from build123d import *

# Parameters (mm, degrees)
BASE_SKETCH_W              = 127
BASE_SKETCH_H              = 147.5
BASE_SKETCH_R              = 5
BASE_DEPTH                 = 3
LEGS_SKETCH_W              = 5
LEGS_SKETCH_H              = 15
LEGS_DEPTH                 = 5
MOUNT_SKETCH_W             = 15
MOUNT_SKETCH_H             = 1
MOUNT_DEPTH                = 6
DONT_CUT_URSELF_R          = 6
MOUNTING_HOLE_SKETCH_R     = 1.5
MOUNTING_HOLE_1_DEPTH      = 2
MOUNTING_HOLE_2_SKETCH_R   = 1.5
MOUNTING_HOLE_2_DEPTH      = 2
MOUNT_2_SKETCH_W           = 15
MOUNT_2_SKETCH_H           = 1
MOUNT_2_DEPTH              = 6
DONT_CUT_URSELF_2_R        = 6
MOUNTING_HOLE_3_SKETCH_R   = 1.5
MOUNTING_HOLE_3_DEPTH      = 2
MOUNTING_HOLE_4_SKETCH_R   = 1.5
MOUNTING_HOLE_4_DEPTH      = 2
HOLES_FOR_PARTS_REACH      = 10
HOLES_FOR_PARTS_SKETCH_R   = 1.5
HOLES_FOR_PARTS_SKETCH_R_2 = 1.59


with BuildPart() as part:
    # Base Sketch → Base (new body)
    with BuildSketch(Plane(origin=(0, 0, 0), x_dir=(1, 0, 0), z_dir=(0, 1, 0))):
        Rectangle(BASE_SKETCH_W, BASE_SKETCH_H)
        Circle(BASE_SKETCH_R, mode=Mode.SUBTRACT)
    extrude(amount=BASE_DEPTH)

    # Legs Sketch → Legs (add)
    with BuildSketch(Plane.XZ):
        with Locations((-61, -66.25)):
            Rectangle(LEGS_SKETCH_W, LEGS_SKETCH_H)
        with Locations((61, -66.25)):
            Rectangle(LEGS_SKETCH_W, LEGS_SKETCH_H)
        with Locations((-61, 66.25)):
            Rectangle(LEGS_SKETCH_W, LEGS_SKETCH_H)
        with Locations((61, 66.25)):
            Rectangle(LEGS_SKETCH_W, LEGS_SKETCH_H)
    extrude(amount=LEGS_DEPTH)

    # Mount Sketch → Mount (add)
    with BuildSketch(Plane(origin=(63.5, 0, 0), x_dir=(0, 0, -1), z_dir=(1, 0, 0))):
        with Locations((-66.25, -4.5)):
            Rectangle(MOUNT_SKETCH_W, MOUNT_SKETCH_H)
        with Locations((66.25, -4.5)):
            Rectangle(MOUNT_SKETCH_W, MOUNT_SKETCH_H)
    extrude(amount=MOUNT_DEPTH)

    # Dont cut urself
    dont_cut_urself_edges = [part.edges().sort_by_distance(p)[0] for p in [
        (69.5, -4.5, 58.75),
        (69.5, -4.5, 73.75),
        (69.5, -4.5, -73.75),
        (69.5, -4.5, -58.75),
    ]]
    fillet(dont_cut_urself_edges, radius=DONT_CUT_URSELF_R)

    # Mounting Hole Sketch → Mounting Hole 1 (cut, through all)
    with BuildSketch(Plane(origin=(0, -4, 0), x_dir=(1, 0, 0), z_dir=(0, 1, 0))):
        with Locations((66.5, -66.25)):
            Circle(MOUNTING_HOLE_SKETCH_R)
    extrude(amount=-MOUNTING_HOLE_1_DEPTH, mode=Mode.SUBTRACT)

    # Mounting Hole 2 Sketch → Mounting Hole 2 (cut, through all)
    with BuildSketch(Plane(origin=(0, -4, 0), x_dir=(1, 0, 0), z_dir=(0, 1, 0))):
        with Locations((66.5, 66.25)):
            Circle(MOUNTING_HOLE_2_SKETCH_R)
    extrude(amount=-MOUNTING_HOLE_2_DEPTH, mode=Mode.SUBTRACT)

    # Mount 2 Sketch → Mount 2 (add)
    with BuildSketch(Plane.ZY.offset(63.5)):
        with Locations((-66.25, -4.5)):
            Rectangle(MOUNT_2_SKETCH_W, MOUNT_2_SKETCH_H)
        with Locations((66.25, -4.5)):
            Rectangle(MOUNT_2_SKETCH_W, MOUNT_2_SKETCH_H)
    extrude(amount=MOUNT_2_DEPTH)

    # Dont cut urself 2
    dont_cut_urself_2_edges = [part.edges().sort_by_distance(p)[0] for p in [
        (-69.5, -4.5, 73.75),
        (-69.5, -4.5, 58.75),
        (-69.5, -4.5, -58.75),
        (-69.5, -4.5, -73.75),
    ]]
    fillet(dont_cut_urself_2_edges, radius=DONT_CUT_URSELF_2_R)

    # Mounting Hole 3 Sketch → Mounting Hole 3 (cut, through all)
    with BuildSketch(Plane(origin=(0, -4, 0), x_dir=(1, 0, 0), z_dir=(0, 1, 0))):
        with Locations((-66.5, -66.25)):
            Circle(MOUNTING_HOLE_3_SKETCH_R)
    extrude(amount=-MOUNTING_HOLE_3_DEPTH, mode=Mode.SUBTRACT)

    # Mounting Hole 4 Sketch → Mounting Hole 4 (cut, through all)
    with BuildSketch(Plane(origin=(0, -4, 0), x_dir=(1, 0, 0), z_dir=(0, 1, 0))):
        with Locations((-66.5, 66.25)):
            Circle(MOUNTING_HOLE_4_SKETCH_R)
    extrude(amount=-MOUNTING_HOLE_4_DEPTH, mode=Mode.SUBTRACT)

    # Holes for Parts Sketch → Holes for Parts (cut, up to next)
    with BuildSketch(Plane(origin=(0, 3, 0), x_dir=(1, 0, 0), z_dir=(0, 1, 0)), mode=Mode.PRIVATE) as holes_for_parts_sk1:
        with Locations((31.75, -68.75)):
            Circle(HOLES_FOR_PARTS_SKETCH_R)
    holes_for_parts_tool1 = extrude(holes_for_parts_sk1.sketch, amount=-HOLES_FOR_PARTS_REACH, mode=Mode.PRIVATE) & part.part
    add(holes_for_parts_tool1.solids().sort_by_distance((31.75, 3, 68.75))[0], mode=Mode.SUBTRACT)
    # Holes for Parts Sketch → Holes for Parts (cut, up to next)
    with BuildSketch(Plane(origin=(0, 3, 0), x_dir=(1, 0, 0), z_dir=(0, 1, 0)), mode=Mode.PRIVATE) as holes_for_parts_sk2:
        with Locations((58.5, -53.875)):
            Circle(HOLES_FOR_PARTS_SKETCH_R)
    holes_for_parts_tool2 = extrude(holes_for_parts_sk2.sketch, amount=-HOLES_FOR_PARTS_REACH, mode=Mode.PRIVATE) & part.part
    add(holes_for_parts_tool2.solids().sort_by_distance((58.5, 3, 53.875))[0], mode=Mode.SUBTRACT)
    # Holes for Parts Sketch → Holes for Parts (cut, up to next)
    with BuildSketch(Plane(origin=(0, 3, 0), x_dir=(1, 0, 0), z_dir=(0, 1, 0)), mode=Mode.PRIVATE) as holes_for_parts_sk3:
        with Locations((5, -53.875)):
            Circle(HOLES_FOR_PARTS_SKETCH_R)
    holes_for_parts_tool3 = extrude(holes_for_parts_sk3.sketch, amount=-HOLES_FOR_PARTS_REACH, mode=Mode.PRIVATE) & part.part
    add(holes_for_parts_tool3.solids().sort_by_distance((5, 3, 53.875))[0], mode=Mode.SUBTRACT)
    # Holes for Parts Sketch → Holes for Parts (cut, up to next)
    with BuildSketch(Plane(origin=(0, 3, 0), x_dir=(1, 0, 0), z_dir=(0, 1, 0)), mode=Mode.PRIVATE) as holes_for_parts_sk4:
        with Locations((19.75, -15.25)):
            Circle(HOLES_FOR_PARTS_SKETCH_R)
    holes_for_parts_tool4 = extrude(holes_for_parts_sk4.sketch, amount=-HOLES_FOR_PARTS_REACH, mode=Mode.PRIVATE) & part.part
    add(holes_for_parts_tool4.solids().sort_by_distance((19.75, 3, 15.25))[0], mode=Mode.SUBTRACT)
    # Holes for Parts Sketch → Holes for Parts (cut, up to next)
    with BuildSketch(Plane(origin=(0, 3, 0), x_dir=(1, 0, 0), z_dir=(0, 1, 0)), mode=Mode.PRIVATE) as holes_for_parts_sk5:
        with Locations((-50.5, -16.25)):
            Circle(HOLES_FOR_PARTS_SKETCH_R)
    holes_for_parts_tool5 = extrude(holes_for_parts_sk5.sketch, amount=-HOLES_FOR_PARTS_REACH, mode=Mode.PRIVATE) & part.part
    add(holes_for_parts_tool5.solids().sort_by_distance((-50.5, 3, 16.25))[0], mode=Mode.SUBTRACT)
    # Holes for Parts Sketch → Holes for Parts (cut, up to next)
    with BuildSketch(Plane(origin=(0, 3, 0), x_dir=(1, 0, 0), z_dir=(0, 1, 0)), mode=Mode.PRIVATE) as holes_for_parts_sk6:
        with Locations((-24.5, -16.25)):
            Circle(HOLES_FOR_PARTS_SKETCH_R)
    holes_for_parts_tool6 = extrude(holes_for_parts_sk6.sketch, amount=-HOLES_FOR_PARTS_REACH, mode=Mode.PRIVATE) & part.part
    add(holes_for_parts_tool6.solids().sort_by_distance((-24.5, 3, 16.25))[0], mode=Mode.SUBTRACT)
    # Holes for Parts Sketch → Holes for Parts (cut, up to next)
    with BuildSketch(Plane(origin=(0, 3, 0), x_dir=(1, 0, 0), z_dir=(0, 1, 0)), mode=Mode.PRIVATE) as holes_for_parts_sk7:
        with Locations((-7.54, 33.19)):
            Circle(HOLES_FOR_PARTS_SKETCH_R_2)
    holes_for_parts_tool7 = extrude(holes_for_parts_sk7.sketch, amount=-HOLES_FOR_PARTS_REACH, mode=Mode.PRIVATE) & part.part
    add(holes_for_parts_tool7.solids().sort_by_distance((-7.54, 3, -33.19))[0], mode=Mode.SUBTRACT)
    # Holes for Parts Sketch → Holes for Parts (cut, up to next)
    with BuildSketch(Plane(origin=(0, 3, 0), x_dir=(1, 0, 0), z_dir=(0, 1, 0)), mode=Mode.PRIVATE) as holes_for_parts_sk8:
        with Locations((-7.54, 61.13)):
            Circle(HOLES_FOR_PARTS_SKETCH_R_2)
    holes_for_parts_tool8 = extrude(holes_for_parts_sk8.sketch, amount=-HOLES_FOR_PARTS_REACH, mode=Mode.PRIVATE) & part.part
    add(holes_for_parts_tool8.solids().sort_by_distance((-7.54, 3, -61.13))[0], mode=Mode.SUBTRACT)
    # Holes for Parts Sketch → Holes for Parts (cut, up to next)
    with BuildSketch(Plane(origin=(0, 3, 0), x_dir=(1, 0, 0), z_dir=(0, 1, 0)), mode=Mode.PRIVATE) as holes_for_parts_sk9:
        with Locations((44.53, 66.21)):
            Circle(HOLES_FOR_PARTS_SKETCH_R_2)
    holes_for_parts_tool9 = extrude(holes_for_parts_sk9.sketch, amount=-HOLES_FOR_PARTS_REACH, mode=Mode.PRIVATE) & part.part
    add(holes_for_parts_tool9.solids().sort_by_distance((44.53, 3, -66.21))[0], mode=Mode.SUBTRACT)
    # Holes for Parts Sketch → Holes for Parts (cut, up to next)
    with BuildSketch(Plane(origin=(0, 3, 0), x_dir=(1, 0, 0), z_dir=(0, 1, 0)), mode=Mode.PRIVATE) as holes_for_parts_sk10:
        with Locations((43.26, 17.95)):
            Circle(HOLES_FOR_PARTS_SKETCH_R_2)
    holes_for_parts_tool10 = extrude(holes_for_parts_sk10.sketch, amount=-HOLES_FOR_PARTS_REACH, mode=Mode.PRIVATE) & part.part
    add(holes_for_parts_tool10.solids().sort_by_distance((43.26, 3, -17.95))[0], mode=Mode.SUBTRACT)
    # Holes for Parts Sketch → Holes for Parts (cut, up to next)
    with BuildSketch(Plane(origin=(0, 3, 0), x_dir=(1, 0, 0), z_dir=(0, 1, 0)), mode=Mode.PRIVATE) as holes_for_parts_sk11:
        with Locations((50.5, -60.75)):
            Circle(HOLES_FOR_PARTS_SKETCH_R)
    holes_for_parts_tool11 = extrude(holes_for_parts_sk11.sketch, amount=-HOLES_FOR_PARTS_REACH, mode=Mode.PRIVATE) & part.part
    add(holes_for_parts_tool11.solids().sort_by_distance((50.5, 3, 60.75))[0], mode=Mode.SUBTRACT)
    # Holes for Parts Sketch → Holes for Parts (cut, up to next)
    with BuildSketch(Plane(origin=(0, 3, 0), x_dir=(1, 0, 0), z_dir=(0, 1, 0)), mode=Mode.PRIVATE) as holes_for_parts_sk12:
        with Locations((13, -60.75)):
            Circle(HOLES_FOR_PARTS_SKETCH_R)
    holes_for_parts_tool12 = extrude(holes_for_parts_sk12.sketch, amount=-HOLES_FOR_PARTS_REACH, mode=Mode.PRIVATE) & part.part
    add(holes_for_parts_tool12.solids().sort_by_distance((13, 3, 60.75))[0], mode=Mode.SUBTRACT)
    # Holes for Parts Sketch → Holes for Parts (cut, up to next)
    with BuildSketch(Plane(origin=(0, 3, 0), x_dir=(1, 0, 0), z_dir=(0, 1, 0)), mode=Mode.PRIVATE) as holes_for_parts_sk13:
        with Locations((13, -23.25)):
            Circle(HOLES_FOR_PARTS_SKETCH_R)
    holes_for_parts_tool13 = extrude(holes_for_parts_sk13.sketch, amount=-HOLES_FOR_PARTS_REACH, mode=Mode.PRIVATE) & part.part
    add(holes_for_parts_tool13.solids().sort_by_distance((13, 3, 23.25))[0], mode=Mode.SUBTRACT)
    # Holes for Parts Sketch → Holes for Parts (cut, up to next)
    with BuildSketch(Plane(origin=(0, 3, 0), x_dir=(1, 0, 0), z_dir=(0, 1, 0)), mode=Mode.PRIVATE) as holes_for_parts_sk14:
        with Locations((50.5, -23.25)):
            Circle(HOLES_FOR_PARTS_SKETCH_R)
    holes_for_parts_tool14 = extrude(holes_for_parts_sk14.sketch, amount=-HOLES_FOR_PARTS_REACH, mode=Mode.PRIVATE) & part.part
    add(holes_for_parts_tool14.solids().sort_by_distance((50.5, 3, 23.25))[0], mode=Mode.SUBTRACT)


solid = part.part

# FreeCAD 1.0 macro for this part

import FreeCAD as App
import Part
import Sketcher

V = App.Vector


def edges_at(feature, points):
    """Names of the edges that pass closest to the given points."""
    edges = feature.Shape.Edges
    near = lambda p: min(range(len(edges)), key=lambda i: edges[i].distToShape(Part.Vertex(*p))[0])
    return sorted({f"Edge{near(p) + 1}" for p in points})

doc = App.newDocument("Part")
params = doc.addObject("Spreadsheet::Sheet", "Params")
for row, (alias, value) in enumerate([
    ("sketch1_diameter", "10 mm"),
    ("sketch1_width", "127 mm"),
    ("sketch1_height", "147.5 mm"),
    ("pad1_length", "3 mm"),
    ("sketch2_width", "5 mm"),
    ("sketch2_height", "15 mm"),
    ("pad2_length", "5 mm"),
    ("sketch3_width", "1 mm"),
    ("sketch3_height", "15 mm"),
    ("pad3_length", "6 mm"),
    ("fillet_radius", "6 mm"),
    ("sketch4_diameter", "3 mm"),
    ("sketch5_diameter", "3 mm"),
    ("sketch6_width", "1 mm"),
    ("sketch6_height", "15 mm"),
    ("pad4_length", "6 mm"),
    ("fillet2_radius", "6 mm"),
    ("sketch7_diameter", "3 mm"),
    ("sketch8_diameter", "3 mm"),
    ("sketch9_diameter", "3 mm"),
    ("sketch10_diameter", "3 mm"),
    ("sketch11_diameter", "3 mm"),
    ("sketch12_diameter", "3 mm"),
    ("sketch13_diameter", "3 mm"),
    ("sketch14_diameter", "3 mm"),
    ("sketch15_diameter", "3.18 mm"),
    ("sketch16_diameter", "3.18 mm"),
    ("sketch17_diameter", "3.18 mm"),
    ("sketch18_diameter", "3.18 mm"),
    ("sketch19_diameter", "3 mm"),
    ("sketch20_diameter", "3 mm"),
    ("sketch21_diameter", "3 mm"),
    ("sketch22_diameter", "3 mm"),
], start=1):
    params.set(f"A{row}", alias)
    params.set(f"B{row}", "=" + value)
    params.setAlias(f"B{row}", alias)

body = doc.addObject("PartDesign::Body", "Body")

sketch1 = doc.addObject("Sketcher::SketchObject", "Sketch")
body.addObject(sketch1)
sketch1.AttachmentSupport = (doc.XZ_Plane, [""])
sketch1.MapMode = "FlatFace"
sketch1.addGeometry([
    Part.LineSegment(V(-64, -74, 0), V(-64, 74, 0)),
    Part.LineSegment(V(-64, 74, 0), V(64, 74, 0)),
    Part.LineSegment(V(64, 74, 0), V(64, -74, 0)),
    Part.LineSegment(V(64, -74, 0), V(-64, -74, 0)),
    Part.Circle(V(0, 0, 0), V(0, 0, 1), 5),
], False)
sketch1.addConstraint([
    Sketcher.Constraint("Coincident", 0, 2, 1, 1),
    Sketcher.Constraint("Coincident", 1, 2, 2, 1),
    Sketcher.Constraint("Coincident", 2, 2, 3, 1),
    Sketcher.Constraint("Coincident", 3, 2, 0, 1),
    Sketcher.Constraint("Vertical", 0),
    Sketcher.Constraint("Horizontal", 1),
    Sketcher.Constraint("Vertical", 2),
    Sketcher.Constraint("Horizontal", 3),
    Sketcher.Constraint("Coincident", 4, 3, -1, 1),
    Sketcher.Constraint("Symmetric", 0, 2, 2, 2, -1, 1),
    Sketcher.Constraint("Diameter", 4, 10.0),
    Sketcher.Constraint("DistanceX", 1, 1, 1, 2, 127.0),
    Sketcher.Constraint("DistanceY", 0, 1, 0, 2, 147.5),
])
sketch1.setExpression("Constraints[10]", "Params.sketch1_diameter")
sketch1.setExpression("Constraints[11]", "Params.sketch1_width")
sketch1.setExpression("Constraints[12]", "Params.sketch1_height")
pad1 = doc.addObject("PartDesign::Pad", "Pad")
body.addObject(pad1)
pad1.Profile = sketch1
pad1.setExpression("Length", "Params.pad1_length")
pad1.Reversed = True

sketch2 = doc.addObject("Sketcher::SketchObject", "Sketch001")
body.addObject(sketch2)
sketch2.AttachmentSupport = (doc.XZ_Plane, [""])
sketch2.MapMode = "FlatFace"
sketch2.addGeometry([
    Part.LineSegment(V(-64, -59, 0), V(-64, -74, 0)),
    Part.LineSegment(V(-64, -74, 0), V(-58, -74, 0)),
    Part.LineSegment(V(-58, -74, 0), V(-58, -59, 0)),
    Part.LineSegment(V(-58, -59, 0), V(-64, -59, 0)),
    Part.LineSegment(V(58, -59, 0), V(58, -74, 0)),
    Part.LineSegment(V(58, -74, 0), V(64, -74, 0)),
    Part.LineSegment(V(64, -74, 0), V(64, -59, 0)),
    Part.LineSegment(V(64, -59, 0), V(58, -59, 0)),
    Part.LineSegment(V(-64, 74, 0), V(-64, 59, 0)),
    Part.LineSegment(V(-64, 59, 0), V(-58, 59, 0)),
    Part.LineSegment(V(-58, 59, 0), V(-58, 74, 0)),
    Part.LineSegment(V(-58, 74, 0), V(-64, 74, 0)),
    Part.LineSegment(V(58, 74, 0), V(58, 59, 0)),
    Part.LineSegment(V(58, 59, 0), V(64, 59, 0)),
    Part.LineSegment(V(64, 59, 0), V(64, 74, 0)),
    Part.LineSegment(V(64, 74, 0), V(58, 74, 0)),
], False)
sketch2.addConstraint([
    Sketcher.Constraint("Coincident", 0, 2, 1, 1),
    Sketcher.Constraint("Coincident", 1, 2, 2, 1),
    Sketcher.Constraint("Coincident", 2, 2, 3, 1),
    Sketcher.Constraint("Coincident", 3, 2, 0, 1),
    Sketcher.Constraint("Coincident", 4, 2, 5, 1),
    Sketcher.Constraint("Coincident", 5, 2, 6, 1),
    Sketcher.Constraint("Coincident", 6, 2, 7, 1),
    Sketcher.Constraint("Coincident", 7, 2, 4, 1),
    Sketcher.Constraint("Coincident", 8, 2, 9, 1),
    Sketcher.Constraint("Coincident", 9, 2, 10, 1),
    Sketcher.Constraint("Coincident", 10, 2, 11, 1),
    Sketcher.Constraint("Coincident", 11, 2, 8, 1),
    Sketcher.Constraint("Coincident", 12, 2, 13, 1),
    Sketcher.Constraint("Coincident", 13, 2, 14, 1),
    Sketcher.Constraint("Coincident", 14, 2, 15, 1),
    Sketcher.Constraint("Coincident", 15, 2, 12, 1),
    Sketcher.Constraint("Vertical", 0),
    Sketcher.Constraint("Horizontal", 1),
    Sketcher.Constraint("Vertical", 2),
    Sketcher.Constraint("Horizontal", 3),
    Sketcher.Constraint("Vertical", 4),
    Sketcher.Constraint("Horizontal", 5),
    Sketcher.Constraint("Vertical", 6),
    Sketcher.Constraint("Horizontal", 7),
    Sketcher.Constraint("Vertical", 8),
    Sketcher.Constraint("Horizontal", 9),
    Sketcher.Constraint("Vertical", 10),
    Sketcher.Constraint("Horizontal", 11),
    Sketcher.Constraint("Vertical", 12),
    Sketcher.Constraint("Horizontal", 13),
    Sketcher.Constraint("Vertical", 14),
    Sketcher.Constraint("Horizontal", 15),
    Sketcher.Constraint("Symmetric", 6, 2, 8, 2, -1, 1),
    Sketcher.Constraint("Symmetric", 4, 2, 10, 2, -1, 1),
    Sketcher.Constraint("Symmetric", 2, 2, 12, 2, -1, 1),
    Sketcher.Constraint("Symmetric", 0, 2, 14, 2, -1, 1),
    Sketcher.Constraint("Symmetric", 1, 2, 4, 2, -2),
    Sketcher.Constraint("Symmetric", 3, 2, 6, 2, -2),
    Sketcher.Constraint("DistanceX", 1, 1, 1, 2, 5.0),
    Sketcher.Constraint("DistanceY", 0, 2, 0, 1, 15.0),
    Sketcher.Constraint("DistanceX", 1, 2, 4, 2, 117.0),
    Sketcher.Constraint("DistanceY", 3, 2, 8, 2, 117.5),
])
sketch2.setExpression("Constraints[38]", "Params.sketch2_width")
sketch2.setExpression("Constraints[39]", "Params.sketch2_height")
pad2 = doc.addObject("PartDesign::Pad", "Pad001")
body.addObject(pad2)
pad2.Profile = sketch2
pad2.setExpression("Length", "Params.pad2_length")

sketch3 = doc.addObject("Sketcher::SketchObject", "Sketch002")
body.addObject(sketch3)
sketch3.AttachmentSupport = (doc.YZ_Plane, [""])
sketch3.MapMode = "FlatFace"
sketch3.AttachmentOffset = App.Placement(V(0, 0, 63.5), App.Rotation())
sketch3.addGeometry([
    Part.LineSegment(V(-4, 73.8, 0), V(-5, 73.8, 0)),
    Part.LineSegment(V(-5, 73.8, 0), V(-5, 58.8, 0)),
    Part.LineSegment(V(-5, 58.8, 0), V(-4, 58.8, 0)),
    Part.LineSegment(V(-4, 58.8, 0), V(-4, 73.8, 0)),
    Part.LineSegment(V(-4, -58.8, 0), V(-5, -58.8, 0)),
    Part.LineSegment(V(-5, -58.8, 0), V(-5, -73.8, 0)),
    Part.LineSegment(V(-5, -73.8, 0), V(-4, -73.8, 0)),
    Part.LineSegment(V(-4, -73.8, 0), V(-4, -58.8, 0)),
], False)
sketch3.addConstraint([
    Sketcher.Constraint("Coincident", 0, 2, 1, 1),
    Sketcher.Constraint("Coincident", 1, 2, 2, 1),
    Sketcher.Constraint("Coincident", 2, 2, 3, 1),
    Sketcher.Constraint("Coincident", 3, 2, 0, 1),
    Sketcher.Constraint("Coincident", 4, 2, 5, 1),
    Sketcher.Constraint("Coincident", 5, 2, 6, 1),
    Sketcher.Constraint("Coincident", 6, 2, 7, 1),
    Sketcher.Constraint("Coincident", 7, 2, 4, 1),
    Sketcher.Constraint("Horizontal", 0),
    Sketcher.Constraint("Vertical", 1),
    Sketcher.Constraint("Horizontal", 2),
    Sketcher.Constraint("Vertical", 3),
    Sketcher.Constraint("Horizontal", 4),
    Sketcher.Constraint("Vertical", 5),
    Sketcher.Constraint("Horizontal", 6),
    Sketcher.Constraint("Vertical", 7),
    Sketcher.Constraint("Symmetric", 1, 2, 4, 2, -1),
    Sketcher.Constraint("Symmetric", 3, 2, 6, 2, -1),
    Sketcher.Constraint("DistanceX", 0, 2, 0, 1, 1.0),
    Sketcher.Constraint("DistanceY", 1, 2, 1, 1, 15.0),
    Sketcher.Constraint("DistanceX", 0, 2, -1, 1, 5.0),
    Sketcher.Constraint("DistanceY", 4, 2, 1, 2, 117.5),
])
sketch3.setExpression("Constraints[18]", "Params.sketch3_width")
sketch3.setExpression("Constraints[19]", "Params.sketch3_height")
pad3 = doc.addObject("PartDesign::Pad", "Pad002")
body.addObject(pad3)
pad3.Profile = sketch3
pad3.setExpression("Length", "Params.pad3_length")
doc.recompute()

fillet = doc.addObject("PartDesign::Fillet", "Fillet")
body.addObject(fillet)
fillet.Base = (pad3, edges_at(pad3, [
    (69.5, -4.5, 58.75),
    (69.5, -4.5, 73.75),
    (69.5, -4.5, -73.75),
    (69.5, -4.5, -58.75),
]))
fillet.setExpression("Radius", "Params.fillet_radius")

sketch4 = doc.addObject("Sketcher::SketchObject", "Sketch003")
body.addObject(sketch4)
sketch4.AttachmentSupport = (doc.XZ_Plane, [""])
sketch4.MapMode = "FlatFace"
sketch4.AttachmentOffset = App.Placement(V(0, 0, 4), App.Rotation())
sketch4.addGeometry(Part.Circle(V(66.5, 66.2, 0), V(0, 0, 1), 1.5), False)
sketch4.addConstraint([
    Sketcher.Constraint("Diameter", 0, 3.0),
    Sketcher.Constraint("DistanceX", -1, 1, 0, 3, 66.5),
    Sketcher.Constraint("DistanceY", -1, 1, 0, 3, 66.25),
])
sketch4.setExpression("Constraints[0]", "Params.sketch4_diameter")
pocket1 = doc.addObject("PartDesign::Pocket", "Pocket")
body.addObject(pocket1)
pocket1.Profile = sketch4
pocket1.Type = "ThroughAll"
pocket1.Reversed = True

sketch5 = doc.addObject("Sketcher::SketchObject", "Sketch004")
body.addObject(sketch5)
sketch5.AttachmentSupport = (doc.XZ_Plane, [""])
sketch5.MapMode = "FlatFace"
sketch5.AttachmentOffset = App.Placement(V(0, 0, 4), App.Rotation())
sketch5.addGeometry(Part.Circle(V(66.5, -66.2, 0), V(0, 0, 1), 1.5), False)
sketch5.addConstraint([
    Sketcher.Constraint("Diameter", 0, 3.0),
    Sketcher.Constraint("DistanceX", -1, 1, 0, 3, 66.5),
    Sketcher.Constraint("DistanceY", 0, 3, -1, 1, 66.25),
])
sketch5.setExpression("Constraints[0]", "Params.sketch5_diameter")
pocket2 = doc.addObject("PartDesign::Pocket", "Pocket001")
body.addObject(pocket2)
pocket2.Profile = sketch5
pocket2.Type = "ThroughAll"
pocket2.Reversed = True

sketch6 = doc.addObject("Sketcher::SketchObject", "Sketch005")
body.addObject(sketch6)
sketch6.AttachmentSupport = (doc.YZ_Plane, [""])
sketch6.MapMode = "FlatFace"
sketch6.AttachmentOffset = App.Placement(V(0, 0, -63.5), App.Rotation())
sketch6.addGeometry([
    Part.LineSegment(V(-4, -73.8, 0), V(-5, -73.8, 0)),
    Part.LineSegment(V(-5, -73.8, 0), V(-5, -58.8, 0)),
    Part.LineSegment(V(-5, -58.8, 0), V(-4, -58.8, 0)),
    Part.LineSegment(V(-4, -58.8, 0), V(-4, -73.8, 0)),
    Part.LineSegment(V(-4, 58.8, 0), V(-5, 58.8, 0)),
    Part.LineSegment(V(-5, 58.8, 0), V(-5, 73.8, 0)),
    Part.LineSegment(V(-5, 73.8, 0), V(-4, 73.8, 0)),
    Part.LineSegment(V(-4, 73.8, 0), V(-4, 58.8, 0)),
], False)
sketch6.addConstraint([
    Sketcher.Constraint("Coincident", 0, 2, 1, 1),
    Sketcher.Constraint("Coincident", 1, 2, 2, 1),
    Sketcher.Constraint("Coincident", 2, 2, 3, 1),
    Sketcher.Constraint("Coincident", 3, 2, 0, 1),
    Sketcher.Constraint("Coincident", 4, 2, 5, 1),
    Sketcher.Constraint("Coincident", 5, 2, 6, 1),
    Sketcher.Constraint("Coincident", 6, 2, 7, 1),
    Sketcher.Constraint("Coincident", 7, 2, 4, 1),
    Sketcher.Constraint("Horizontal", 0),
    Sketcher.Constraint("Vertical", 1),
    Sketcher.Constraint("Horizontal", 2),
    Sketcher.Constraint("Vertical", 3),
    Sketcher.Constraint("Horizontal", 4),
    Sketcher.Constraint("Vertical", 5),
    Sketcher.Constraint("Horizontal", 6),
    Sketcher.Constraint("Vertical", 7),
    Sketcher.Constraint("Symmetric", 1, 2, 4, 2, -1),
    Sketcher.Constraint("Symmetric", 3, 2, 6, 2, -1),
    Sketcher.Constraint("DistanceX", 0, 2, 0, 1, 1.0),
    Sketcher.Constraint("DistanceY", 1, 1, 1, 2, 15.0),
    Sketcher.Constraint("DistanceX", 0, 2, -1, 1, 5.0),
    Sketcher.Constraint("DistanceY", 1, 2, 4, 2, 117.5),
])
sketch6.setExpression("Constraints[18]", "Params.sketch6_width")
sketch6.setExpression("Constraints[19]", "Params.sketch6_height")
pad4 = doc.addObject("PartDesign::Pad", "Pad003")
body.addObject(pad4)
pad4.Profile = sketch6
pad4.setExpression("Length", "Params.pad4_length")
pad4.Reversed = True
doc.recompute()

fillet2 = doc.addObject("PartDesign::Fillet", "Fillet001")
body.addObject(fillet2)
fillet2.Base = (pad4, edges_at(pad4, [
    (-69.5, -4.5, 73.75),
    (-69.5, -4.5, 58.75),
    (-69.5, -4.5, -58.75),
    (-69.5, -4.5, -73.75),
]))
fillet2.setExpression("Radius", "Params.fillet2_radius")

sketch7 = doc.addObject("Sketcher::SketchObject", "Sketch006")
body.addObject(sketch7)
sketch7.AttachmentSupport = (doc.XZ_Plane, [""])
sketch7.MapMode = "FlatFace"
sketch7.AttachmentOffset = App.Placement(V(0, 0, 4), App.Rotation())
sketch7.addGeometry(Part.Circle(V(-66.5, 66.2, 0), V(0, 0, 1), 1.5), False)
sketch7.addConstraint([
    Sketcher.Constraint("Diameter", 0, 3.0),
    Sketcher.Constraint("DistanceX", 0, 3, -1, 1, 66.5),
    Sketcher.Constraint("DistanceY", -1, 1, 0, 3, 66.25),
])
sketch7.setExpression("Constraints[0]", "Params.sketch7_diameter")
pocket3 = doc.addObject("PartDesign::Pocket", "Pocket002")
body.addObject(pocket3)
pocket3.Profile = sketch7
pocket3.Type = "ThroughAll"
pocket3.Reversed = True

sketch8 = doc.addObject("Sketcher::SketchObject", "Sketch007")
body.addObject(sketch8)
sketch8.AttachmentSupport = (doc.XZ_Plane, [""])
sketch8.MapMode = "FlatFace"
sketch8.AttachmentOffset = App.Placement(V(0, 0, 4), App.Rotation())
sketch8.addGeometry(Part.Circle(V(-66.5, -66.2, 0), V(0, 0, 1), 1.5), False)
sketch8.addConstraint([
    Sketcher.Constraint("Diameter", 0, 3.0),
    Sketcher.Constraint("DistanceX", 0, 3, -1, 1, 66.5),
    Sketcher.Constraint("DistanceY", 0, 3, -1, 1, 66.25),
])
sketch8.setExpression("Constraints[0]", "Params.sketch8_diameter")
pocket4 = doc.addObject("PartDesign::Pocket", "Pocket003")
body.addObject(pocket4)
pocket4.Profile = sketch8
pocket4.Type = "ThroughAll"
pocket4.Reversed = True

sketch9 = doc.addObject("Sketcher::SketchObject", "Sketch008")
body.addObject(sketch9)
sketch9.AttachmentSupport = (doc.XZ_Plane, [""])
sketch9.MapMode = "FlatFace"
sketch9.AttachmentOffset = App.Placement(V(0, 0, -3), App.Rotation())
sketch9.addGeometry(Part.Circle(V(31.8, 68.8, 0), V(0, 0, 1), 1.5), False)
sketch9.addConstraint([
    Sketcher.Constraint("Diameter", 0, 3.0),
    Sketcher.Constraint("DistanceX", -1, 1, 0, 3, 31.75),
    Sketcher.Constraint("DistanceY", -1, 1, 0, 3, 68.75),
])
sketch9.setExpression("Constraints[0]", "Params.sketch9_diameter")
pocket5 = doc.addObject("PartDesign::Pocket", "Pocket004")
body.addObject(pocket5)
pocket5.Profile = sketch9
pocket5.Type = "UpToFirst"
pocket5.Reversed = True

sketch10 = doc.addObject("Sketcher::SketchObject", "Sketch009")
body.addObject(sketch10)
sketch10.AttachmentSupport = (doc.XZ_Plane, [""])
sketch10.MapMode = "FlatFace"
sketch10.AttachmentOffset = App.Placement(V(0, 0, -3), App.Rotation())
sketch10.addGeometry(Part.Circle(V(58.5, 53.9, 0), V(0, 0, 1), 1.5), False)
sketch10.addConstraint([
    Sketcher.Constraint("Diameter", 0, 3.0),
    Sketcher.Constraint("DistanceX", -1, 1, 0, 3, 58.5),
    Sketcher.Constraint("DistanceY", -1, 1, 0, 3, 53.875),
])
sketch10.setExpression("Constraints[0]", "Params.sketch10_diameter")
pocket6 = doc.addObject("PartDesign::Pocket", "Pocket005")
body.addObject(pocket6)
pocket6.Profile = sketch10
pocket6.Type = "UpToFirst"
pocket6.Reversed = True

sketch11 = doc.addObject("Sketcher::SketchObject", "Sketch010")
body.addObject(sketch11)
sketch11.AttachmentSupport = (doc.XZ_Plane, [""])
sketch11.MapMode = "FlatFace"
sketch11.AttachmentOffset = App.Placement(V(0, 0, -3), App.Rotation())
sketch11.addGeometry(Part.Circle(V(5, 53.9, 0), V(0, 0, 1), 1.5), False)
sketch11.addConstraint([
    Sketcher.Constraint("Diameter", 0, 3.0),
    Sketcher.Constraint("DistanceX", -1, 1, 0, 3, 5.0),
    Sketcher.Constraint("DistanceY", -1, 1, 0, 3, 53.875),
])
sketch11.setExpression("Constraints[0]", "Params.sketch11_diameter")
pocket7 = doc.addObject("PartDesign::Pocket", "Pocket006")
body.addObject(pocket7)
pocket7.Profile = sketch11
pocket7.Type = "UpToFirst"
pocket7.Reversed = True

sketch12 = doc.addObject("Sketcher::SketchObject", "Sketch011")
body.addObject(sketch12)
sketch12.AttachmentSupport = (doc.XZ_Plane, [""])
sketch12.MapMode = "FlatFace"
sketch12.AttachmentOffset = App.Placement(V(0, 0, -3), App.Rotation())
sketch12.addGeometry(Part.Circle(V(19.8, 15.2, 0), V(0, 0, 1), 1.5), False)
sketch12.addConstraint([
    Sketcher.Constraint("Diameter", 0, 3.0),
    Sketcher.Constraint("DistanceX", -1, 1, 0, 3, 19.75),
    Sketcher.Constraint("DistanceY", -1, 1, 0, 3, 15.25),
])
sketch12.setExpression("Constraints[0]", "Params.sketch12_diameter")
pocket8 = doc.addObject("PartDesign::Pocket", "Pocket007")
body.addObject(pocket8)
pocket8.Profile = sketch12
pocket8.Type = "UpToFirst"
pocket8.Reversed = True

sketch13 = doc.addObject("Sketcher::SketchObject", "Sketch012")
body.addObject(sketch13)
sketch13.AttachmentSupport = (doc.XZ_Plane, [""])
sketch13.MapMode = "FlatFace"
sketch13.AttachmentOffset = App.Placement(V(0, 0, -3), App.Rotation())
sketch13.addGeometry(Part.Circle(V(-50.5, 16.2, 0), V(0, 0, 1), 1.5), False)
sketch13.addConstraint([
    Sketcher.Constraint("Diameter", 0, 3.0),
    Sketcher.Constraint("DistanceX", 0, 3, -1, 1, 50.5),
    Sketcher.Constraint("DistanceY", -1, 1, 0, 3, 16.25),
])
sketch13.setExpression("Constraints[0]", "Params.sketch13_diameter")
pocket9 = doc.addObject("PartDesign::Pocket", "Pocket008")
body.addObject(pocket9)
pocket9.Profile = sketch13
pocket9.Type = "UpToFirst"
pocket9.Reversed = True

sketch14 = doc.addObject("Sketcher::SketchObject", "Sketch013")
body.addObject(sketch14)
sketch14.AttachmentSupport = (doc.XZ_Plane, [""])
sketch14.MapMode = "FlatFace"
sketch14.AttachmentOffset = App.Placement(V(0, 0, -3), App.Rotation())
sketch14.addGeometry(Part.Circle(V(-24.5, 16.2, 0), V(0, 0, 1), 1.5), False)
sketch14.addConstraint([
    Sketcher.Constraint("Diameter", 0, 3.0),
    Sketcher.Constraint("DistanceX", 0, 3, -1, 1, 24.5),
    Sketcher.Constraint("DistanceY", -1, 1, 0, 3, 16.25),
])
sketch14.setExpression("Constraints[0]", "Params.sketch14_diameter")
pocket10 = doc.addObject("PartDesign::Pocket", "Pocket009")
body.addObject(pocket10)
pocket10.Profile = sketch14
pocket10.Type = "UpToFirst"
pocket10.Reversed = True

sketch15 = doc.addObject("Sketcher::SketchObject", "Sketch014")
body.addObject(sketch15)
sketch15.AttachmentSupport = (doc.XZ_Plane, [""])
sketch15.MapMode = "FlatFace"
sketch15.AttachmentOffset = App.Placement(V(0, 0, -3), App.Rotation())
sketch15.addGeometry(Part.Circle(V(-7.5, -33.2, 0), V(0, 0, 1), 1.6), False)
sketch15.addConstraint([
    Sketcher.Constraint("Diameter", 0, 3.18),
    Sketcher.Constraint("DistanceX", 0, 3, -1, 1, 7.54),
    Sketcher.Constraint("DistanceY", 0, 3, -1, 1, 33.19),
])
sketch15.setExpression("Constraints[0]", "Params.sketch15_diameter")
pocket11 = doc.addObject("PartDesign::Pocket", "Pocket010")
body.addObject(pocket11)
pocket11.Profile = sketch15
pocket11.Type = "UpToFirst"
pocket11.Reversed = True

sketch16 = doc.addObject("Sketcher::SketchObject", "Sketch015")
body.addObject(sketch16)
sketch16.AttachmentSupport = (doc.XZ_Plane, [""])
sketch16.MapMode = "FlatFace"
sketch16.AttachmentOffset = App.Placement(V(0, 0, -3), App.Rotation())
sketch16.addGeometry(Part.Circle(V(-7.5, -61.1, 0), V(0, 0, 1), 1.6), False)
sketch16.addConstraint([
    Sketcher.Constraint("Diameter", 0, 3.18),
    Sketcher.Constraint("DistanceX", 0, 3, -1, 1, 7.54),
    Sketcher.Constraint("DistanceY", 0, 3, -1, 1, 61.13),
])
sketch16.setExpression("Constraints[0]", "Params.sketch16_diameter")
pocket12 = doc.addObject("PartDesign::Pocket", "Pocket011")
body.addObject(pocket12)
pocket12.Profile = sketch16
pocket12.Type = "UpToFirst"
pocket12.Reversed = True

sketch17 = doc.addObject("Sketcher::SketchObject", "Sketch016")
body.addObject(sketch17)
sketch17.AttachmentSupport = (doc.XZ_Plane, [""])
sketch17.MapMode = "FlatFace"
sketch17.AttachmentOffset = App.Placement(V(0, 0, -3), App.Rotation())
sketch17.addGeometry(Part.Circle(V(44.5, -66.2, 0), V(0, 0, 1), 1.6), False)
sketch17.addConstraint([
    Sketcher.Constraint("Diameter", 0, 3.18),
    Sketcher.Constraint("DistanceX", -1, 1, 0, 3, 44.53),
    Sketcher.Constraint("DistanceY", 0, 3, -1, 1, 66.21),
])
sketch17.setExpression("Constraints[0]", "Params.sketch17_diameter")
pocket13 = doc.addObject("PartDesign::Pocket", "Pocket012")
body.addObject(pocket13)
pocket13.Profile = sketch17
pocket13.Type = "UpToFirst"
pocket13.Reversed = True

sketch18 = doc.addObject("Sketcher::SketchObject", "Sketch017")
body.addObject(sketch18)
sketch18.AttachmentSupport = (doc.XZ_Plane, [""])
sketch18.MapMode = "FlatFace"
sketch18.AttachmentOffset = App.Placement(V(0, 0, -3), App.Rotation())
sketch18.addGeometry(Part.Circle(V(43.3, -17.9, 0), V(0, 0, 1), 1.6), False)
sketch18.addConstraint([
    Sketcher.Constraint("Diameter", 0, 3.18),
    Sketcher.Constraint("DistanceX", -1, 1, 0, 3, 43.26),
    Sketcher.Constraint("DistanceY", 0, 3, -1, 1, 17.95),
])
sketch18.setExpression("Constraints[0]", "Params.sketch18_diameter")
pocket14 = doc.addObject("PartDesign::Pocket", "Pocket013")
body.addObject(pocket14)
pocket14.Profile = sketch18
pocket14.Type = "UpToFirst"
pocket14.Reversed = True

sketch19 = doc.addObject("Sketcher::SketchObject", "Sketch018")
body.addObject(sketch19)
sketch19.AttachmentSupport = (doc.XZ_Plane, [""])
sketch19.MapMode = "FlatFace"
sketch19.AttachmentOffset = App.Placement(V(0, 0, -3), App.Rotation())
sketch19.addGeometry(Part.Circle(V(50.5, 60.8, 0), V(0, 0, 1), 1.5), False)
sketch19.addConstraint([
    Sketcher.Constraint("Diameter", 0, 3.0),
    Sketcher.Constraint("DistanceX", -1, 1, 0, 3, 50.5),
    Sketcher.Constraint("DistanceY", -1, 1, 0, 3, 60.75),
])
sketch19.setExpression("Constraints[0]", "Params.sketch19_diameter")
pocket15 = doc.addObject("PartDesign::Pocket", "Pocket014")
body.addObject(pocket15)
pocket15.Profile = sketch19
pocket15.Type = "UpToFirst"
pocket15.Reversed = True

sketch20 = doc.addObject("Sketcher::SketchObject", "Sketch019")
body.addObject(sketch20)
sketch20.AttachmentSupport = (doc.XZ_Plane, [""])
sketch20.MapMode = "FlatFace"
sketch20.AttachmentOffset = App.Placement(V(0, 0, -3), App.Rotation())
sketch20.addGeometry(Part.Circle(V(13, 60.8, 0), V(0, 0, 1), 1.5), False)
sketch20.addConstraint([
    Sketcher.Constraint("Diameter", 0, 3.0),
    Sketcher.Constraint("DistanceX", -1, 1, 0, 3, 13.0),
    Sketcher.Constraint("DistanceY", -1, 1, 0, 3, 60.75),
])
sketch20.setExpression("Constraints[0]", "Params.sketch20_diameter")
pocket16 = doc.addObject("PartDesign::Pocket", "Pocket015")
body.addObject(pocket16)
pocket16.Profile = sketch20
pocket16.Type = "UpToFirst"
pocket16.Reversed = True

sketch21 = doc.addObject("Sketcher::SketchObject", "Sketch020")
body.addObject(sketch21)
sketch21.AttachmentSupport = (doc.XZ_Plane, [""])
sketch21.MapMode = "FlatFace"
sketch21.AttachmentOffset = App.Placement(V(0, 0, -3), App.Rotation())
sketch21.addGeometry(Part.Circle(V(13, 23.2, 0), V(0, 0, 1), 1.5), False)
sketch21.addConstraint([
    Sketcher.Constraint("Diameter", 0, 3.0),
    Sketcher.Constraint("DistanceX", -1, 1, 0, 3, 13.0),
    Sketcher.Constraint("DistanceY", -1, 1, 0, 3, 23.25),
])
sketch21.setExpression("Constraints[0]", "Params.sketch21_diameter")
pocket17 = doc.addObject("PartDesign::Pocket", "Pocket016")
body.addObject(pocket17)
pocket17.Profile = sketch21
pocket17.Type = "UpToFirst"
pocket17.Reversed = True

sketch22 = doc.addObject("Sketcher::SketchObject", "Sketch021")
body.addObject(sketch22)
sketch22.AttachmentSupport = (doc.XZ_Plane, [""])
sketch22.MapMode = "FlatFace"
sketch22.AttachmentOffset = App.Placement(V(0, 0, -3), App.Rotation())
sketch22.addGeometry(Part.Circle(V(50.5, 23.2, 0), V(0, 0, 1), 1.5), False)
sketch22.addConstraint([
    Sketcher.Constraint("Diameter", 0, 3.0),
    Sketcher.Constraint("DistanceX", -1, 1, 0, 3, 50.5),
    Sketcher.Constraint("DistanceY", -1, 1, 0, 3, 23.25),
])
sketch22.setExpression("Constraints[0]", "Params.sketch22_diameter")
pocket18 = doc.addObject("PartDesign::Pocket", "Pocket017")
body.addObject(pocket18)
pocket18.Profile = sketch22
pocket18.Type = "UpToFirst"
pocket18.Reversed = True

doc.recompute()
